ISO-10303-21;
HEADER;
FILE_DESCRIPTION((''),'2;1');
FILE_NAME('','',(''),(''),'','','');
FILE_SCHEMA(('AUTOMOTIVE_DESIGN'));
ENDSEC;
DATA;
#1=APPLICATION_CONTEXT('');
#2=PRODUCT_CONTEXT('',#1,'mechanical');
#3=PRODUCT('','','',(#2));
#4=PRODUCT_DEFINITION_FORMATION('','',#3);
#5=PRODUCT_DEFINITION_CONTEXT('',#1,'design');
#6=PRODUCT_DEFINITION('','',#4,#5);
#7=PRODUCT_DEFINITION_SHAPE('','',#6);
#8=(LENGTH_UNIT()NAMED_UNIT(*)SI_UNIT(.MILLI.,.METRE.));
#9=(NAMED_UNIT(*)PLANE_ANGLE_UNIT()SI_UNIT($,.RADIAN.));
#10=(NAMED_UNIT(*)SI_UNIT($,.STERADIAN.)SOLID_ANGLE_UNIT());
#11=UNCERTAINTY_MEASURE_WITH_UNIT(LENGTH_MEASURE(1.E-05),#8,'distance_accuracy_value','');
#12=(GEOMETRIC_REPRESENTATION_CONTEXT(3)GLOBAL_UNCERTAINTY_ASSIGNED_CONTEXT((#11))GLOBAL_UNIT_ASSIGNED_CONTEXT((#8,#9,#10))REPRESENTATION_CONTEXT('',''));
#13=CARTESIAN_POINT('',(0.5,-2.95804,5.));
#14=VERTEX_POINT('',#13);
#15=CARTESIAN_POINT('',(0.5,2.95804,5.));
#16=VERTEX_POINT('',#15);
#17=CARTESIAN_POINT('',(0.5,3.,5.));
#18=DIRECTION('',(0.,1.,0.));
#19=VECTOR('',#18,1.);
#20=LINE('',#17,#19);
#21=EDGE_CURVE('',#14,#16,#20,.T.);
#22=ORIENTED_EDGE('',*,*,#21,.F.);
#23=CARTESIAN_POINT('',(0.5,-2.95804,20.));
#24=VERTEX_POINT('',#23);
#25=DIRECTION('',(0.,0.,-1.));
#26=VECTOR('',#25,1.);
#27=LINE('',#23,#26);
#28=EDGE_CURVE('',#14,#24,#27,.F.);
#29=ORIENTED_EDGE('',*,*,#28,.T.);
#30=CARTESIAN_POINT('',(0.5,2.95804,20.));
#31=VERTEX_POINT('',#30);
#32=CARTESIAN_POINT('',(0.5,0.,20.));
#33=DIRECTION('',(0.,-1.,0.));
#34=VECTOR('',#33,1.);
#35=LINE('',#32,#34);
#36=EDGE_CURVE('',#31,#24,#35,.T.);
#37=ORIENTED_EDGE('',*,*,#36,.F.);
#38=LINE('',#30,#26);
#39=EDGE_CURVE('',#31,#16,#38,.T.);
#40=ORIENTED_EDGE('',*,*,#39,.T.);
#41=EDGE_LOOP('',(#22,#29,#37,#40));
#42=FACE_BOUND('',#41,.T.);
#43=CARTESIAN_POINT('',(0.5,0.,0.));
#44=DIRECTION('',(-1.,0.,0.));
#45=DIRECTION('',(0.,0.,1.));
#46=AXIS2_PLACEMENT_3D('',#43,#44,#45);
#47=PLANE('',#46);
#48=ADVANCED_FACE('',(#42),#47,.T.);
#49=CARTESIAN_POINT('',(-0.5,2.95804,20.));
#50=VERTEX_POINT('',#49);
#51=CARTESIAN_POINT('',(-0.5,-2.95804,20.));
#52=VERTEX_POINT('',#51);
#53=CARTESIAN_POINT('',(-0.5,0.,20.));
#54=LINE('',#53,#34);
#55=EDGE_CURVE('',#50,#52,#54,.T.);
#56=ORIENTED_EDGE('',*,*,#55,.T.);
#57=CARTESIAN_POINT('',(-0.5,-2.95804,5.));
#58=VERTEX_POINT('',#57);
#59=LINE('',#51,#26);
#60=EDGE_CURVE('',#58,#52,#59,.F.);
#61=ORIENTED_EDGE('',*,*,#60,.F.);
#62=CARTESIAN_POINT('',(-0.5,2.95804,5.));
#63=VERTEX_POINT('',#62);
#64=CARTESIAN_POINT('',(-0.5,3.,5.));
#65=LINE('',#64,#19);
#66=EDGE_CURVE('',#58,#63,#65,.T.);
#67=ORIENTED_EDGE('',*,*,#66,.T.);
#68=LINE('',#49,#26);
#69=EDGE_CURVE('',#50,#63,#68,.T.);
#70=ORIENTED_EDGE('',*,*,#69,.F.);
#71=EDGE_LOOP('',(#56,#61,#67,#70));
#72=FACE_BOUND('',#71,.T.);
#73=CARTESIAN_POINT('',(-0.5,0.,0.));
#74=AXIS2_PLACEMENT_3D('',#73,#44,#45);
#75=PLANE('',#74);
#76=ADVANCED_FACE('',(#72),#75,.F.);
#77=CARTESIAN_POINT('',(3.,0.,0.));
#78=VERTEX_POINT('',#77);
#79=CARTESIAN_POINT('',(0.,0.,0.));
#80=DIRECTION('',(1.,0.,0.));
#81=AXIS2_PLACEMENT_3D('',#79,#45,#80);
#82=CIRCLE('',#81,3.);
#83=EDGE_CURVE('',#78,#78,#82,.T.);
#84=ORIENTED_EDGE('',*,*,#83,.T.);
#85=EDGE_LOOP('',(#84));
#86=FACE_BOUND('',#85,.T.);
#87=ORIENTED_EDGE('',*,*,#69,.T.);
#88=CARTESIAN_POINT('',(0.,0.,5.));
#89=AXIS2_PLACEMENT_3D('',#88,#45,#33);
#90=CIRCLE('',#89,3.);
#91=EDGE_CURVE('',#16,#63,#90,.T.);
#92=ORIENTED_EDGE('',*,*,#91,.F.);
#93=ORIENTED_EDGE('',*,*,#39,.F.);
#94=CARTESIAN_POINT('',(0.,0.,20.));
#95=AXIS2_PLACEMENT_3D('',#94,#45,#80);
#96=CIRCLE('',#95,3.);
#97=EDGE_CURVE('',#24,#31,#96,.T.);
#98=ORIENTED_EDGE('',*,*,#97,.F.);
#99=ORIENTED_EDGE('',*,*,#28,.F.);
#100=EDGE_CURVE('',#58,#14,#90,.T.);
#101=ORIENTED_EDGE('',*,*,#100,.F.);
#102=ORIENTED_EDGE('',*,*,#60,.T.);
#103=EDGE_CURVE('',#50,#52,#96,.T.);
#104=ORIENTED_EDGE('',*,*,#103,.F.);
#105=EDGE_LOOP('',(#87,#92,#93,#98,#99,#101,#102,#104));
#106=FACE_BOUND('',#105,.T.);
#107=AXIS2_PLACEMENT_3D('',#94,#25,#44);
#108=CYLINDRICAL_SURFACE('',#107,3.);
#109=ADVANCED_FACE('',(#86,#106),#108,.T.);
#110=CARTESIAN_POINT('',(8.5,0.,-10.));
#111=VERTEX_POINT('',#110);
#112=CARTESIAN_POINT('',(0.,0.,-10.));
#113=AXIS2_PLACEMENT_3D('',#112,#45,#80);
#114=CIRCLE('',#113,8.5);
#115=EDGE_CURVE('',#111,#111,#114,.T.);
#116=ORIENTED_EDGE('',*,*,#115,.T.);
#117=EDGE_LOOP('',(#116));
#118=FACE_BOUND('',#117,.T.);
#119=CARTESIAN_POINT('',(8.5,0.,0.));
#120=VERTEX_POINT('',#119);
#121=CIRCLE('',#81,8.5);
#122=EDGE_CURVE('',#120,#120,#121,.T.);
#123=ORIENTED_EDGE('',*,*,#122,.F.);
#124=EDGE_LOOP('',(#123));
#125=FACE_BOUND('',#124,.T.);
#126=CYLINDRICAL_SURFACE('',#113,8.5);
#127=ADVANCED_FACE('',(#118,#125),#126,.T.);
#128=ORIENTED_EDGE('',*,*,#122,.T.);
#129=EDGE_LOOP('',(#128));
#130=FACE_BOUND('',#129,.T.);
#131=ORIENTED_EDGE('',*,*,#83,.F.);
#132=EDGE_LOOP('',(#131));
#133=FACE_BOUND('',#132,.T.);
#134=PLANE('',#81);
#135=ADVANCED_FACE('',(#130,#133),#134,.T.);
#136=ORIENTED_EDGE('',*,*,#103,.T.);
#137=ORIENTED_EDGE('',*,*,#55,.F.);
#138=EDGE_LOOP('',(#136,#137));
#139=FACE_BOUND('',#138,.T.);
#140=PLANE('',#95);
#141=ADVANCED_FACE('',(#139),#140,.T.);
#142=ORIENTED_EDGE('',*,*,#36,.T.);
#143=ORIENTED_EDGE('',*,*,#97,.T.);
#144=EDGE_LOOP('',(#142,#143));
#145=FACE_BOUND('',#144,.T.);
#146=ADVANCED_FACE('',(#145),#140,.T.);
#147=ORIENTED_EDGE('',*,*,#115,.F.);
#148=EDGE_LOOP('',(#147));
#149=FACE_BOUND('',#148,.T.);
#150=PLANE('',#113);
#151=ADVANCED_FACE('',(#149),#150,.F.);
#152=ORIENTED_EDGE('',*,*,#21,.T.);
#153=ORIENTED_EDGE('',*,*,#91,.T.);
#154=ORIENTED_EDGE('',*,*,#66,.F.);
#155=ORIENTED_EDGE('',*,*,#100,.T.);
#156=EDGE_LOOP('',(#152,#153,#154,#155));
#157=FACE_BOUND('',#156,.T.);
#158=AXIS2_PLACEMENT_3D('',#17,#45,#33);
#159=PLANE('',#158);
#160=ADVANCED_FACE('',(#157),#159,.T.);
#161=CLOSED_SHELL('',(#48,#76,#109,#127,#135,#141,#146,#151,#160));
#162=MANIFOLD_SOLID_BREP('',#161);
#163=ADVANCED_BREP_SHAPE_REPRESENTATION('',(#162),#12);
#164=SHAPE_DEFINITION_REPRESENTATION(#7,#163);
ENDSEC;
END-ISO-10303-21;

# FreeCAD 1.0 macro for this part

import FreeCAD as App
import Part
import Sketcher
from FreeCAD import Vector


def add_polygon(sketch, points):
    """Adds a closed chain of lines whose ends are joined by coincident constraints."""
    first, n = sketch.GeometryCount, len(points)
    for a, b in zip(points, points[1:] + points[:1]):
        sketch.addGeometry(Part.LineSegment(App.Vector(*a, 0), App.Vector(*b, 0)), False)
    for i in range(n):
        sketch.addConstraint(Sketcher.Constraint("Coincident", first + i, 2, first + (i + 1) % n, 1))

doc = App.newDocument("Part")
body = doc.addObject("PartDesign::Body", "Body")

sketch1 = body.newObject("Sketcher::SketchObject", "Sketch")
sketch1.AttachmentSupport = (doc.getObject("XY_Plane"), [""])
sketch1.MapMode = "FlatFace"
sketch1.addGeometry(Part.Circle(Vector(0, 0, 0), Vector(0, 0, 1), 3), False)
sketch1.addConstraint([
    Sketcher.Constraint("Coincident", 0, 3, -1, 1),
    Sketcher.Constraint("Diameter", 0, 6.0),
])
pad1 = body.newObject("PartDesign::Pad", "Pad")
pad1.Profile = sketch1
pad1.Length = 20

sketch2 = body.newObject("Sketcher::SketchObject", "Sketch001")
sketch2.AttachmentSupport = (doc.getObject("XY_Plane"), [""])
sketch2.MapMode = "FlatFace"
sketch2.addGeometry(Part.Circle(Vector(0, 0, 0), Vector(0, 0, 1), 8), False)
sketch2.addConstraint([
    Sketcher.Constraint("Coincident", 0, 3, -1, 1),
    Sketcher.Constraint("Diameter", 0, 17.0),
])
pad2 = body.newObject("PartDesign::Pad", "Pad001")
pad2.Profile = sketch2
pad2.Length = 10
pad2.Reversed = True

sketch3 = body.newObject("Sketcher::SketchObject", "Sketch002")
sketch3.AttachmentSupport = (doc.getObject("YZ_Plane"), [""])
sketch3.MapMode = "FlatFace"
add_polygon(sketch3, [(3, 20), (-3, 20), (-3, 5), (3, 5)])
sketch3.addConstraint([
    Sketcher.Constraint("Horizontal", 0),
    Sketcher.Constraint("Vertical", 1),
    Sketcher.Constraint("Horizontal", 2),
    Sketcher.Constraint("Vertical", 3),
    Sketcher.Constraint("DistanceX", 0, 2, 0, 1, 6.0),
    Sketcher.Constraint("DistanceY", 1, 2, 1, 1, 15.0),
    Sketcher.Constraint("DistanceX", 0, 2, -1, 1, 3.0),
    Sketcher.Constraint("DistanceY", -1, 1, 0, 2, 20.0),
])
pocket1 = body.newObject("PartDesign::Pocket", "Pocket")
pocket1.Profile = sketch3
pocket1.Type = "TwoLengths"
pocket1.Length = 0.5
pocket1.Length2 = 0.5
pocket1.Reversed = True

doc.recompute()
